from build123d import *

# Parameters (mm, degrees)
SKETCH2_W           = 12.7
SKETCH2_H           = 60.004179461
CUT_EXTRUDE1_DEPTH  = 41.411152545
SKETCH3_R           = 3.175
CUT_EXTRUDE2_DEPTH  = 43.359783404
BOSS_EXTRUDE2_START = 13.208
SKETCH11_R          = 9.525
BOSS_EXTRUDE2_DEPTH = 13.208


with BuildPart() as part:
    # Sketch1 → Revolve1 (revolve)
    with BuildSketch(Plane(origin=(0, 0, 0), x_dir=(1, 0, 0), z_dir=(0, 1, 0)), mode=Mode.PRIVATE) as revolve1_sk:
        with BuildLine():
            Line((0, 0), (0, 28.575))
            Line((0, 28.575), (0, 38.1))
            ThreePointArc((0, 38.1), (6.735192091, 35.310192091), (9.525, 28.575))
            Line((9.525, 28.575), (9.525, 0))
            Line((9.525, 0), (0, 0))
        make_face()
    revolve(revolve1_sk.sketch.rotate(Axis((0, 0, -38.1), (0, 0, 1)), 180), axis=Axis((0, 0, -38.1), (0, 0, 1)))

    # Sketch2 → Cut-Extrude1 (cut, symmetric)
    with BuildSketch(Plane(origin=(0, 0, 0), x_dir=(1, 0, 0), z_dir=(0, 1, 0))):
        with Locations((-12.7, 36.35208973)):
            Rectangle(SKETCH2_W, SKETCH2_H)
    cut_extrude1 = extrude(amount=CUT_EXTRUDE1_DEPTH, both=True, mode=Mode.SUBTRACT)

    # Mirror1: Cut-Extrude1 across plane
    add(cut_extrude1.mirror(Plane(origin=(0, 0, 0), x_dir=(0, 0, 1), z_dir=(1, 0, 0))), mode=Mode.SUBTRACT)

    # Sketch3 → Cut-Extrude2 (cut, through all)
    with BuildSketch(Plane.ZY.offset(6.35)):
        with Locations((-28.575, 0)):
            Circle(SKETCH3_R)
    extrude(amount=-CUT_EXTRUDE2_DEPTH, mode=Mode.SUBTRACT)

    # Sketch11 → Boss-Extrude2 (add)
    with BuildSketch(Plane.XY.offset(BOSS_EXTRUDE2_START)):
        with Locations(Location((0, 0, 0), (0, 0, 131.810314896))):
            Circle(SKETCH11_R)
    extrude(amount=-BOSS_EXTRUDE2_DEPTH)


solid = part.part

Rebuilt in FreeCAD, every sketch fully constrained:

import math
import FreeCAD as App
import Part
import Sketcher
from FreeCAD import Vector
Q = App.Units.Quantity

doc = App.newDocument("Part")
body = doc.addObject("PartDesign::Body", "Body")

sketch1 = body.newObject("Sketcher::SketchObject", "Sketch")
sketch1.AttachmentSupport = (doc.getObject("XZ_Plane"), [""])
sketch1.MapMode = "FlatFace"
sketch1.addGeometry([
    Part.LineSegment(Vector(0, -38.1, 0), Vector(0, 0, 0)),
    Part.LineSegment(Vector(0, 0, 0), Vector(9.525, 0, 0)),
    Part.LineSegment(Vector(9.525, 0, 0), Vector(9.525, -28.575, 0)),
    Part.ArcOfCircle(Part.Circle(Vector(0, -28.575, 0), Vector(0, 0, 1), 9.525), math.radians(-90), math.radians(0)),
], False)
sketch1.addConstraint([
    Sketcher.Constraint("Coincident", 0, 2, 1, 1),
    Sketcher.Constraint("Coincident", 1, 2, 2, 1),
    Sketcher.Constraint("Tangent", 2, 2, 3, 2),
    Sketcher.Constraint("Coincident", 3, 1, 0, 1),
    Sketcher.Constraint("Vertical", 0),
    Sketcher.Constraint("Horizontal", 1),
    Sketcher.Constraint("Vertical", 2),
    Sketcher.Constraint("Coincident", 0, 2, -1, 1),
    Sketcher.Constraint("PointOnObject", 3, 3, -2),
    Sketcher.Constraint("DistanceY", 0, 1, 0, 2, Q("1.5 in")),
    Sketcher.Constraint("Radius", 3, Q("0.375 in")),
])
revolution = body.newObject("PartDesign::Revolution", "Revolution")
revolution.Profile = sketch1
revolution.ReferenceAxis = (sketch1, ["V_Axis"])
revolution.Angle = 360

sketch2 = body.newObject("Sketcher::SketchObject", "Sketch001")
sketch2.AttachmentSupport = (doc.getObject("XZ_Plane"), [""])
sketch2.MapMode = "FlatFace"
sketch2.addGeometry([
    Part.LineSegment(Vector(-19.05, -66.354179, 0), Vector(-19.05, -6.35, 0)),
    Part.LineSegment(Vector(-19.05, -6.35, 0), Vector(-6.35, -6.35, 0)),
    Part.LineSegment(Vector(-6.35, -6.35, 0), Vector(-6.35, -66.354179, 0)),
    Part.LineSegment(Vector(-6.35, -66.354179, 0), Vector(-19.05, -66.354179, 0)),
], False)
sketch2.addConstraint([
    Sketcher.Constraint("Coincident", 0, 2, 1, 1),
    Sketcher.Constraint("Coincident", 1, 2, 2, 1),
    Sketcher.Constraint("Coincident", 2, 2, 3, 1),
    Sketcher.Constraint("Coincident", 3, 2, 0, 1),
    Sketcher.Constraint("Vertical", 0),
    Sketcher.Constraint("Horizontal", 1),
    Sketcher.Constraint("Vertical", 2),
    Sketcher.Constraint("Horizontal", 3),
    Sketcher.Constraint("DistanceX", 1, 1, 1, 2, Q("0.5 in")),
    Sketcher.Constraint("DistanceX", 0, 2, -1, 1, Q("0.75 in")),
    Sketcher.Constraint("DistanceY", 0, 2, -1, 1, Q("0.25 in")),
    Sketcher.Constraint("DistanceY", 0, 1, 0, 2, 60.004179),
])
pocket1 = body.newObject("PartDesign::Pocket", "Pocket")
pocket1.Profile = sketch2
pocket1.Length = 82.822305
pocket1.Midplane = True
doc.recompute()

mirrored = body.newObject("PartDesign::Mirrored", "Mirrored")
mirrored.Originals = [pocket1]
mirrored.MirrorPlane = (doc.getObject("YZ_Plane"), [""])
body.Tip = mirrored

sketch3 = body.newObject("Sketcher::SketchObject", "Sketch002")
sketch3.AttachmentSupport = (doc.getObject("YZ_Plane"), [""])
sketch3.MapMode = "FlatFace"
sketch3.AttachmentOffset = App.Placement(Vector(0, 0, -0.25 * 25.4), App.Rotation())
sketch3.addGeometry(Part.Circle(Vector(0, -28.575, 0), Vector(0, 0, 1), 3.175), False)
sketch3.addConstraint([
    Sketcher.Constraint("PointOnObject", 0, 3, -2),
    Sketcher.Constraint("Diameter", 0, Q("0.25 in")),
    Sketcher.Constraint("DistanceY", 0, 3, -1, 1, Q("1.125 in")),
])
pocket2 = body.newObject("PartDesign::Pocket", "Pocket001")
pocket2.Profile = sketch3
pocket2.Type = "ThroughAll"
pocket2.Reversed = True

sketch4 = body.newObject("Sketcher::SketchObject", "Sketch003")
sketch4.AttachmentSupport = (doc.getObject("XY_Plane"), [""])
sketch4.MapMode = "FlatFace"
sketch4.AttachmentOffset = App.Placement(Vector(0, 0, 0.52 * 25.4), App.Rotation())
sketch4.addGeometry(Part.Circle(Vector(0, 0, 0), Vector(0, 0, 1), 9.525), False)
sketch4.addConstraint([
    Sketcher.Constraint("Coincident", 0, 3, -1, 1),
    Sketcher.Constraint("Diameter", 0, Q("0.75 in")),
])
pad1 = body.newObject("PartDesign::Pad", "Pad")
pad1.Profile = sketch4
pad1.Length = Q("0.52 in")
pad1.Reversed = True

doc.recompute()
